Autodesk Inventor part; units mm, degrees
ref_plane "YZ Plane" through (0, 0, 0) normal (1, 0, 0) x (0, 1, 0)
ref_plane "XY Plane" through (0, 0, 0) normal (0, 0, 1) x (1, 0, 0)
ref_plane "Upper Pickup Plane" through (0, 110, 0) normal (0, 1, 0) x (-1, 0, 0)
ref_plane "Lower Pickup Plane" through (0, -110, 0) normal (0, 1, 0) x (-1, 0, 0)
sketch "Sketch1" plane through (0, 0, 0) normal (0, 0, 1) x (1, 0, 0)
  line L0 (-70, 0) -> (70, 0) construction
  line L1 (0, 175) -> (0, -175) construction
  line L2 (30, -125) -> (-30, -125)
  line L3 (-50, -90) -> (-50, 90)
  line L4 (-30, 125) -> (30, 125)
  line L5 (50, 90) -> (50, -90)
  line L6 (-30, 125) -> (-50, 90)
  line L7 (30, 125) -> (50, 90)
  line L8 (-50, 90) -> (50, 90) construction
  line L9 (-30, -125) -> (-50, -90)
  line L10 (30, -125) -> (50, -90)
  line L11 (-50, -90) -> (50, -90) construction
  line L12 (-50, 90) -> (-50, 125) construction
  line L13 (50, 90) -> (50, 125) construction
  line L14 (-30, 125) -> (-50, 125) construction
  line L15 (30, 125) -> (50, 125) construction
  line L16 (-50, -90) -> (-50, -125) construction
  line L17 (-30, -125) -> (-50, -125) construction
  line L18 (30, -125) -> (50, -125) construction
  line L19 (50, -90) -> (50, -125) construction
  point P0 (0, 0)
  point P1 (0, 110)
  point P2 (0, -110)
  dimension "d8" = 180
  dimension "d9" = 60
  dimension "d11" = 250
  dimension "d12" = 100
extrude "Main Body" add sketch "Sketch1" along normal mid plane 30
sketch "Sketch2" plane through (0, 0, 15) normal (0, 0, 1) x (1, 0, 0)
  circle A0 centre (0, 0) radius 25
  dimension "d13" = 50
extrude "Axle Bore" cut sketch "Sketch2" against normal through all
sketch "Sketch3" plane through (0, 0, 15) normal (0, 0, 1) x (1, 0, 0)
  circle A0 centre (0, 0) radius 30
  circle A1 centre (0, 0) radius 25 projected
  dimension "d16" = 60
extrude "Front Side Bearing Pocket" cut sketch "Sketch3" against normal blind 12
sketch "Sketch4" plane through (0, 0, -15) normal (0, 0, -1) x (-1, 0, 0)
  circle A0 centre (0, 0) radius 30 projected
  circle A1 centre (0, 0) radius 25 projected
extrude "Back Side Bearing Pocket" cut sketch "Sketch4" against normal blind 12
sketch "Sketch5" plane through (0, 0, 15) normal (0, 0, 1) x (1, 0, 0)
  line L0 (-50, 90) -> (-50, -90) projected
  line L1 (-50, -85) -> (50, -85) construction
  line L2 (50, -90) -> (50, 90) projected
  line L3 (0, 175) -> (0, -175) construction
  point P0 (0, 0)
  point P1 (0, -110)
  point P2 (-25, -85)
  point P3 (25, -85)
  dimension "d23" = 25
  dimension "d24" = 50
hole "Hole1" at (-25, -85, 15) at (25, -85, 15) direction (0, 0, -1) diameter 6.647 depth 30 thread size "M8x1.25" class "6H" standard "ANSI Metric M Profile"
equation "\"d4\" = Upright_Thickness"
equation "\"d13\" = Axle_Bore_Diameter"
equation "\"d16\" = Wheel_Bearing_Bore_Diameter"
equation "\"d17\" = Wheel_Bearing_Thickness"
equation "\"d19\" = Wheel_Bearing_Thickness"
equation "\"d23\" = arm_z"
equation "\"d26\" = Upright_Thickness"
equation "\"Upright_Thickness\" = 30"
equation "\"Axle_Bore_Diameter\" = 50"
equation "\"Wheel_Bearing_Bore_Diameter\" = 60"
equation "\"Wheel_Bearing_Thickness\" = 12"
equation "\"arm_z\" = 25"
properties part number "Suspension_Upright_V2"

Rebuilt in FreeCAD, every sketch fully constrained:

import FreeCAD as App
import Part
import Sketcher
Q = App.Units.Quantity

doc = App.newDocument("Part")
params = doc.addObject("Spreadsheet::Sheet", "Params")
for row, (alias, value) in enumerate([
    ("sketch1_width", "60 mm"),
    ("sketch1_height", "180 mm"),
    ("pad1_length", "30 mm"),
    ("sketch2_diameter", "50 mm"),
    ("sketch3_diameter", "60 mm"),
    ("sketch3_diameter2", "50 mm"),
    ("pocket2_length", "12 mm"),
    ("sketch4_diameter", "60 mm"),
    ("sketch4_diameter2", "50 mm"),
    ("pocket3_length", "12 mm"),
    ("hole_diameter", "6.647 mm"),
    ("hole_depth", "30 mm"),
], start=1):
    params.set(f"A{row}", alias)
    params.set(f"B{row}", "=" + value)
    params.setAlias(f"B{row}", alias)

body = doc.addObject("PartDesign::Body", "Body")

sketch1 = body.newObject("Sketcher::SketchObject", "Sketch")
sketch1.AttachmentSupport = (doc.getObject("XY_Plane"), [""])
sketch1.MapMode = "FlatFace"
sketch1.addGeometry([
    Part.LineSegment(App.Vector(-30, -125, 0), App.Vector(30, -125, 0)),
    Part.LineSegment(App.Vector(30, -125, 0), App.Vector(50, -90, 0)),
    Part.LineSegment(App.Vector(50, -90, 0), App.Vector(50, 90, 0)),
    Part.LineSegment(App.Vector(50, 90, 0), App.Vector(30, 125, 0)),
    Part.LineSegment(App.Vector(30, 125, 0), App.Vector(-30, 125, 0)),
    Part.LineSegment(App.Vector(-30, 125, 0), App.Vector(-50, 90, 0)),
    Part.LineSegment(App.Vector(-50, 90, 0), App.Vector(-50, -90, 0)),
    Part.LineSegment(App.Vector(-50, -90, 0), App.Vector(-30, -125, 0)),
], False)
sketch1.addConstraint([
    Sketcher.Constraint("Coincident", 0, 2, 1, 1),
    Sketcher.Constraint("Coincident", 1, 2, 2, 1),
    Sketcher.Constraint("Coincident", 2, 2, 3, 1),
    Sketcher.Constraint("Coincident", 3, 2, 4, 1),
    Sketcher.Constraint("Coincident", 4, 2, 5, 1),
    Sketcher.Constraint("Coincident", 5, 2, 6, 1),
    Sketcher.Constraint("Coincident", 6, 2, 7, 1),
    Sketcher.Constraint("Coincident", 7, 2, 0, 1),
    Sketcher.Constraint("Horizontal", 0),
    Sketcher.Constraint("Vertical", 2),
    Sketcher.Constraint("Horizontal", 4),
    Sketcher.Constraint("Vertical", 6),
    Sketcher.Constraint("Symmetric", 0, 2, 4, 2, -1, 1),
    Sketcher.Constraint("Symmetric", 1, 2, 5, 2, -1, 1),
    Sketcher.Constraint("Parallel", 3, 7),
    Sketcher.Constraint("Horizontal", 2, 2, 5, 2),
    Sketcher.Constraint("Horizontal", 1, 2, 6, 2),
    Sketcher.Constraint("Vertical", 0, 2, 3, 2),
    Sketcher.Constraint("DistanceX", 0, 1, 0, 2, Q("60 mm")),
    Sketcher.Constraint("DistanceY", 2, 1, 2, 2, Q("180 mm")),
    Sketcher.Constraint("DistanceY", 0, 2, 3, 2, Q("250 mm")),
    Sketcher.Constraint("DistanceX", 5, 2, 2, 2, Q("100 mm")),
])
sketch1.setExpression("Constraints[18]", "Params.sketch1_width")
sketch1.setExpression("Constraints[19]", "Params.sketch1_height")
pad1 = body.newObject("PartDesign::Pad", "Pad")
pad1.Profile = sketch1
pad1.setExpression("Length", "Params.pad1_length")
pad1.Midplane = True

sketch2 = body.newObject("Sketcher::SketchObject", "Sketch001")
sketch2.AttachmentSupport = (doc.getObject("XY_Plane"), [""])
sketch2.MapMode = "FlatFace"
sketch2.AttachmentOffset = App.Placement(App.Vector(0, 0, 15), App.Rotation())
sketch2.addGeometry(Part.Circle(App.Vector(0, 0, 0), App.Vector(0, 0, 1), 25), False)
sketch2.addConstraint([
    Sketcher.Constraint("Coincident", 0, 3, -1, 1),
    Sketcher.Constraint("Diameter", 0, Q("50 mm")),
])
sketch2.setExpression("Constraints[1]", "Params.sketch2_diameter")
pocket1 = body.newObject("PartDesign::Pocket", "Pocket")
pocket1.Profile = sketch2
pocket1.Type = "ThroughAll"

sketch3 = body.newObject("Sketcher::SketchObject", "Sketch002")
sketch3.AttachmentSupport = (doc.getObject("XY_Plane"), [""])
sketch3.MapMode = "FlatFace"
sketch3.AttachmentOffset = App.Placement(App.Vector(0, 0, 15), App.Rotation())
sketch3.addGeometry([
    Part.Circle(App.Vector(0, 0, 0), App.Vector(0, 0, 1), 30),
    Part.Circle(App.Vector(0, 0, 0), App.Vector(0, 0, 1), 25),
], False)
sketch3.addConstraint([
    Sketcher.Constraint("Coincident", 0, 3, -1, 1),
    Sketcher.Constraint("Coincident", 1, 3, -1, 1),
    Sketcher.Constraint("Diameter", 0, Q("60 mm")),
    Sketcher.Constraint("Diameter", 1, Q("50 mm")),
])
sketch3.setExpression("Constraints[2]", "Params.sketch3_diameter")
sketch3.setExpression("Constraints[3]", "Params.sketch3_diameter2")
pocket2 = body.newObject("PartDesign::Pocket", "Pocket001")
pocket2.Profile = sketch3
pocket2.setExpression("Length", "Params.pocket2_length")

sketch4 = body.newObject("Sketcher::SketchObject", "Sketch003")
sketch4.AttachmentSupport = (doc.getObject("XY_Plane"), [""])
sketch4.MapMode = "FlatFace"
sketch4.AttachmentOffset = App.Placement(App.Vector(0, 0, -15), App.Rotation())
sketch4.addGeometry([
    Part.Circle(App.Vector(0, 0, 0), App.Vector(0, 0, 1), 30),
    Part.Circle(App.Vector(0, 0, 0), App.Vector(0, 0, 1), 25),
], False)
sketch4.addConstraint([
    Sketcher.Constraint("Coincident", 0, 3, -1, 1),
    Sketcher.Constraint("Coincident", 1, 3, -1, 1),
    Sketcher.Constraint("Diameter", 0, Q("60 mm")),
    Sketcher.Constraint("Diameter", 1, Q("50 mm")),
])
sketch4.setExpression("Constraints[2]", "Params.sketch4_diameter")
sketch4.setExpression("Constraints[3]", "Params.sketch4_diameter2")
pocket3 = body.newObject("PartDesign::Pocket", "Pocket002")
pocket3.Profile = sketch4
pocket3.setExpression("Length", "Params.pocket3_length")
pocket3.Reversed = True

sketch5 = body.newObject("Sketcher::SketchObject", "Sketch004")
sketch5.AttachmentSupport = (doc.getObject("XY_Plane"), [""])
sketch5.MapMode = "FlatFace"
sketch5.AttachmentOffset = App.Placement(App.Vector(0, 0, 15), App.Rotation())
sketch5.addGeometry([
    Part.Circle(App.Vector(-25, -85, 0), App.Vector(0, 0, 1), 3.3),
    Part.Circle(App.Vector(25, -85, 0), App.Vector(0, 0, 1), 3.3),
], False)
sketch5.addConstraint([
    Sketcher.Constraint("Equal", 0, 1),
    Sketcher.Constraint("Symmetric", 0, 3, 1, 3, -2),
    Sketcher.Constraint("Diameter", 0, Q("6.647 mm")),
    Sketcher.Constraint("DistanceX", 0, 3, -1, 1, Q("25 mm")),
    Sketcher.Constraint("DistanceY", 0, 3, -1, 1, Q("85 mm")),
])
doc.recompute()
hole = body.newObject("PartDesign::Hole", "Hole")
hole.Profile = sketch5
hole.ThreadType = "None"
hole.setExpression("Diameter", "Params.hole_diameter")
hole.DepthType = "Dimension"
hole.setExpression("Depth", "Params.hole_depth")
hole.DrillPoint = "Flat"

doc.recompute()
